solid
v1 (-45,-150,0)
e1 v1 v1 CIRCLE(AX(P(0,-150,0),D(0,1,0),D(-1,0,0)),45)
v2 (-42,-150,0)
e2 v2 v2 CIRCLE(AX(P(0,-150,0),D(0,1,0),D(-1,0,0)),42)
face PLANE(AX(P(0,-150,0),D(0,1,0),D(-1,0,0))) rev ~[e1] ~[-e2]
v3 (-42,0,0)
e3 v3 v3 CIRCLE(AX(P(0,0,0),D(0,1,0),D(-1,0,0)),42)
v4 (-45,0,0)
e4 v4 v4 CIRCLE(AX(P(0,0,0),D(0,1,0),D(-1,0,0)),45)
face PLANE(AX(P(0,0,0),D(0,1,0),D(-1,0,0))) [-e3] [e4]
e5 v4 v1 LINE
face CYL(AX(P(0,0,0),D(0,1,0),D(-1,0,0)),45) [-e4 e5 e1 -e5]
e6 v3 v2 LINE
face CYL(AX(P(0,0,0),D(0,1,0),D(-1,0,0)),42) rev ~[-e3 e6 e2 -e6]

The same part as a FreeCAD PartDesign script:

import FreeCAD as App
import Part
import Sketcher
Q = App.Units.Quantity

doc = App.newDocument("Part")
params = doc.addObject("Spreadsheet::Sheet", "Params")
for row, (alias, value) in enumerate([
    ("sketch1_diameter", "90 mm"),
    ("sketch1_diameter2", "84 mm"),
    ("pad1_length", "150 mm"),
], start=1):
    params.set(f"A{row}", alias)
    params.set(f"B{row}", "=" + value)
    params.setAlias(f"B{row}", alias)

body = doc.addObject("PartDesign::Body", "Body")

sketch1 = doc.addObject("Sketcher::SketchObject", "Sketch")
body.addObject(sketch1)
sketch1.AttachmentSupport = (doc.XZ_Plane, [""])
sketch1.MapMode = "FlatFace"
sketch1.addGeometry([
    Part.Circle(App.Vector(0, 0, 0), App.Vector(0, 0, 1), 45),
    Part.Circle(App.Vector(0, 0, 0), App.Vector(0, 0, 1), 42),
], False)
sketch1.addConstraint([
    Sketcher.Constraint("Coincident", 0, 3, -1, 1),
    Sketcher.Constraint("Coincident", 1, 3, -1, 1),
    Sketcher.Constraint("Diameter", 0, Q("90 mm")),
    Sketcher.Constraint("Diameter", 1, Q("84 mm")),
])
sketch1.setExpression("Constraints[2]", "Params.sketch1_diameter")
sketch1.setExpression("Constraints[3]", "Params.sketch1_diameter2")
pad1 = doc.addObject("PartDesign::Pad", "Pad")
body.addObject(pad1)
pad1.Profile = sketch1
pad1.setExpression("Length", "Params.pad1_length")

doc.recompute()
